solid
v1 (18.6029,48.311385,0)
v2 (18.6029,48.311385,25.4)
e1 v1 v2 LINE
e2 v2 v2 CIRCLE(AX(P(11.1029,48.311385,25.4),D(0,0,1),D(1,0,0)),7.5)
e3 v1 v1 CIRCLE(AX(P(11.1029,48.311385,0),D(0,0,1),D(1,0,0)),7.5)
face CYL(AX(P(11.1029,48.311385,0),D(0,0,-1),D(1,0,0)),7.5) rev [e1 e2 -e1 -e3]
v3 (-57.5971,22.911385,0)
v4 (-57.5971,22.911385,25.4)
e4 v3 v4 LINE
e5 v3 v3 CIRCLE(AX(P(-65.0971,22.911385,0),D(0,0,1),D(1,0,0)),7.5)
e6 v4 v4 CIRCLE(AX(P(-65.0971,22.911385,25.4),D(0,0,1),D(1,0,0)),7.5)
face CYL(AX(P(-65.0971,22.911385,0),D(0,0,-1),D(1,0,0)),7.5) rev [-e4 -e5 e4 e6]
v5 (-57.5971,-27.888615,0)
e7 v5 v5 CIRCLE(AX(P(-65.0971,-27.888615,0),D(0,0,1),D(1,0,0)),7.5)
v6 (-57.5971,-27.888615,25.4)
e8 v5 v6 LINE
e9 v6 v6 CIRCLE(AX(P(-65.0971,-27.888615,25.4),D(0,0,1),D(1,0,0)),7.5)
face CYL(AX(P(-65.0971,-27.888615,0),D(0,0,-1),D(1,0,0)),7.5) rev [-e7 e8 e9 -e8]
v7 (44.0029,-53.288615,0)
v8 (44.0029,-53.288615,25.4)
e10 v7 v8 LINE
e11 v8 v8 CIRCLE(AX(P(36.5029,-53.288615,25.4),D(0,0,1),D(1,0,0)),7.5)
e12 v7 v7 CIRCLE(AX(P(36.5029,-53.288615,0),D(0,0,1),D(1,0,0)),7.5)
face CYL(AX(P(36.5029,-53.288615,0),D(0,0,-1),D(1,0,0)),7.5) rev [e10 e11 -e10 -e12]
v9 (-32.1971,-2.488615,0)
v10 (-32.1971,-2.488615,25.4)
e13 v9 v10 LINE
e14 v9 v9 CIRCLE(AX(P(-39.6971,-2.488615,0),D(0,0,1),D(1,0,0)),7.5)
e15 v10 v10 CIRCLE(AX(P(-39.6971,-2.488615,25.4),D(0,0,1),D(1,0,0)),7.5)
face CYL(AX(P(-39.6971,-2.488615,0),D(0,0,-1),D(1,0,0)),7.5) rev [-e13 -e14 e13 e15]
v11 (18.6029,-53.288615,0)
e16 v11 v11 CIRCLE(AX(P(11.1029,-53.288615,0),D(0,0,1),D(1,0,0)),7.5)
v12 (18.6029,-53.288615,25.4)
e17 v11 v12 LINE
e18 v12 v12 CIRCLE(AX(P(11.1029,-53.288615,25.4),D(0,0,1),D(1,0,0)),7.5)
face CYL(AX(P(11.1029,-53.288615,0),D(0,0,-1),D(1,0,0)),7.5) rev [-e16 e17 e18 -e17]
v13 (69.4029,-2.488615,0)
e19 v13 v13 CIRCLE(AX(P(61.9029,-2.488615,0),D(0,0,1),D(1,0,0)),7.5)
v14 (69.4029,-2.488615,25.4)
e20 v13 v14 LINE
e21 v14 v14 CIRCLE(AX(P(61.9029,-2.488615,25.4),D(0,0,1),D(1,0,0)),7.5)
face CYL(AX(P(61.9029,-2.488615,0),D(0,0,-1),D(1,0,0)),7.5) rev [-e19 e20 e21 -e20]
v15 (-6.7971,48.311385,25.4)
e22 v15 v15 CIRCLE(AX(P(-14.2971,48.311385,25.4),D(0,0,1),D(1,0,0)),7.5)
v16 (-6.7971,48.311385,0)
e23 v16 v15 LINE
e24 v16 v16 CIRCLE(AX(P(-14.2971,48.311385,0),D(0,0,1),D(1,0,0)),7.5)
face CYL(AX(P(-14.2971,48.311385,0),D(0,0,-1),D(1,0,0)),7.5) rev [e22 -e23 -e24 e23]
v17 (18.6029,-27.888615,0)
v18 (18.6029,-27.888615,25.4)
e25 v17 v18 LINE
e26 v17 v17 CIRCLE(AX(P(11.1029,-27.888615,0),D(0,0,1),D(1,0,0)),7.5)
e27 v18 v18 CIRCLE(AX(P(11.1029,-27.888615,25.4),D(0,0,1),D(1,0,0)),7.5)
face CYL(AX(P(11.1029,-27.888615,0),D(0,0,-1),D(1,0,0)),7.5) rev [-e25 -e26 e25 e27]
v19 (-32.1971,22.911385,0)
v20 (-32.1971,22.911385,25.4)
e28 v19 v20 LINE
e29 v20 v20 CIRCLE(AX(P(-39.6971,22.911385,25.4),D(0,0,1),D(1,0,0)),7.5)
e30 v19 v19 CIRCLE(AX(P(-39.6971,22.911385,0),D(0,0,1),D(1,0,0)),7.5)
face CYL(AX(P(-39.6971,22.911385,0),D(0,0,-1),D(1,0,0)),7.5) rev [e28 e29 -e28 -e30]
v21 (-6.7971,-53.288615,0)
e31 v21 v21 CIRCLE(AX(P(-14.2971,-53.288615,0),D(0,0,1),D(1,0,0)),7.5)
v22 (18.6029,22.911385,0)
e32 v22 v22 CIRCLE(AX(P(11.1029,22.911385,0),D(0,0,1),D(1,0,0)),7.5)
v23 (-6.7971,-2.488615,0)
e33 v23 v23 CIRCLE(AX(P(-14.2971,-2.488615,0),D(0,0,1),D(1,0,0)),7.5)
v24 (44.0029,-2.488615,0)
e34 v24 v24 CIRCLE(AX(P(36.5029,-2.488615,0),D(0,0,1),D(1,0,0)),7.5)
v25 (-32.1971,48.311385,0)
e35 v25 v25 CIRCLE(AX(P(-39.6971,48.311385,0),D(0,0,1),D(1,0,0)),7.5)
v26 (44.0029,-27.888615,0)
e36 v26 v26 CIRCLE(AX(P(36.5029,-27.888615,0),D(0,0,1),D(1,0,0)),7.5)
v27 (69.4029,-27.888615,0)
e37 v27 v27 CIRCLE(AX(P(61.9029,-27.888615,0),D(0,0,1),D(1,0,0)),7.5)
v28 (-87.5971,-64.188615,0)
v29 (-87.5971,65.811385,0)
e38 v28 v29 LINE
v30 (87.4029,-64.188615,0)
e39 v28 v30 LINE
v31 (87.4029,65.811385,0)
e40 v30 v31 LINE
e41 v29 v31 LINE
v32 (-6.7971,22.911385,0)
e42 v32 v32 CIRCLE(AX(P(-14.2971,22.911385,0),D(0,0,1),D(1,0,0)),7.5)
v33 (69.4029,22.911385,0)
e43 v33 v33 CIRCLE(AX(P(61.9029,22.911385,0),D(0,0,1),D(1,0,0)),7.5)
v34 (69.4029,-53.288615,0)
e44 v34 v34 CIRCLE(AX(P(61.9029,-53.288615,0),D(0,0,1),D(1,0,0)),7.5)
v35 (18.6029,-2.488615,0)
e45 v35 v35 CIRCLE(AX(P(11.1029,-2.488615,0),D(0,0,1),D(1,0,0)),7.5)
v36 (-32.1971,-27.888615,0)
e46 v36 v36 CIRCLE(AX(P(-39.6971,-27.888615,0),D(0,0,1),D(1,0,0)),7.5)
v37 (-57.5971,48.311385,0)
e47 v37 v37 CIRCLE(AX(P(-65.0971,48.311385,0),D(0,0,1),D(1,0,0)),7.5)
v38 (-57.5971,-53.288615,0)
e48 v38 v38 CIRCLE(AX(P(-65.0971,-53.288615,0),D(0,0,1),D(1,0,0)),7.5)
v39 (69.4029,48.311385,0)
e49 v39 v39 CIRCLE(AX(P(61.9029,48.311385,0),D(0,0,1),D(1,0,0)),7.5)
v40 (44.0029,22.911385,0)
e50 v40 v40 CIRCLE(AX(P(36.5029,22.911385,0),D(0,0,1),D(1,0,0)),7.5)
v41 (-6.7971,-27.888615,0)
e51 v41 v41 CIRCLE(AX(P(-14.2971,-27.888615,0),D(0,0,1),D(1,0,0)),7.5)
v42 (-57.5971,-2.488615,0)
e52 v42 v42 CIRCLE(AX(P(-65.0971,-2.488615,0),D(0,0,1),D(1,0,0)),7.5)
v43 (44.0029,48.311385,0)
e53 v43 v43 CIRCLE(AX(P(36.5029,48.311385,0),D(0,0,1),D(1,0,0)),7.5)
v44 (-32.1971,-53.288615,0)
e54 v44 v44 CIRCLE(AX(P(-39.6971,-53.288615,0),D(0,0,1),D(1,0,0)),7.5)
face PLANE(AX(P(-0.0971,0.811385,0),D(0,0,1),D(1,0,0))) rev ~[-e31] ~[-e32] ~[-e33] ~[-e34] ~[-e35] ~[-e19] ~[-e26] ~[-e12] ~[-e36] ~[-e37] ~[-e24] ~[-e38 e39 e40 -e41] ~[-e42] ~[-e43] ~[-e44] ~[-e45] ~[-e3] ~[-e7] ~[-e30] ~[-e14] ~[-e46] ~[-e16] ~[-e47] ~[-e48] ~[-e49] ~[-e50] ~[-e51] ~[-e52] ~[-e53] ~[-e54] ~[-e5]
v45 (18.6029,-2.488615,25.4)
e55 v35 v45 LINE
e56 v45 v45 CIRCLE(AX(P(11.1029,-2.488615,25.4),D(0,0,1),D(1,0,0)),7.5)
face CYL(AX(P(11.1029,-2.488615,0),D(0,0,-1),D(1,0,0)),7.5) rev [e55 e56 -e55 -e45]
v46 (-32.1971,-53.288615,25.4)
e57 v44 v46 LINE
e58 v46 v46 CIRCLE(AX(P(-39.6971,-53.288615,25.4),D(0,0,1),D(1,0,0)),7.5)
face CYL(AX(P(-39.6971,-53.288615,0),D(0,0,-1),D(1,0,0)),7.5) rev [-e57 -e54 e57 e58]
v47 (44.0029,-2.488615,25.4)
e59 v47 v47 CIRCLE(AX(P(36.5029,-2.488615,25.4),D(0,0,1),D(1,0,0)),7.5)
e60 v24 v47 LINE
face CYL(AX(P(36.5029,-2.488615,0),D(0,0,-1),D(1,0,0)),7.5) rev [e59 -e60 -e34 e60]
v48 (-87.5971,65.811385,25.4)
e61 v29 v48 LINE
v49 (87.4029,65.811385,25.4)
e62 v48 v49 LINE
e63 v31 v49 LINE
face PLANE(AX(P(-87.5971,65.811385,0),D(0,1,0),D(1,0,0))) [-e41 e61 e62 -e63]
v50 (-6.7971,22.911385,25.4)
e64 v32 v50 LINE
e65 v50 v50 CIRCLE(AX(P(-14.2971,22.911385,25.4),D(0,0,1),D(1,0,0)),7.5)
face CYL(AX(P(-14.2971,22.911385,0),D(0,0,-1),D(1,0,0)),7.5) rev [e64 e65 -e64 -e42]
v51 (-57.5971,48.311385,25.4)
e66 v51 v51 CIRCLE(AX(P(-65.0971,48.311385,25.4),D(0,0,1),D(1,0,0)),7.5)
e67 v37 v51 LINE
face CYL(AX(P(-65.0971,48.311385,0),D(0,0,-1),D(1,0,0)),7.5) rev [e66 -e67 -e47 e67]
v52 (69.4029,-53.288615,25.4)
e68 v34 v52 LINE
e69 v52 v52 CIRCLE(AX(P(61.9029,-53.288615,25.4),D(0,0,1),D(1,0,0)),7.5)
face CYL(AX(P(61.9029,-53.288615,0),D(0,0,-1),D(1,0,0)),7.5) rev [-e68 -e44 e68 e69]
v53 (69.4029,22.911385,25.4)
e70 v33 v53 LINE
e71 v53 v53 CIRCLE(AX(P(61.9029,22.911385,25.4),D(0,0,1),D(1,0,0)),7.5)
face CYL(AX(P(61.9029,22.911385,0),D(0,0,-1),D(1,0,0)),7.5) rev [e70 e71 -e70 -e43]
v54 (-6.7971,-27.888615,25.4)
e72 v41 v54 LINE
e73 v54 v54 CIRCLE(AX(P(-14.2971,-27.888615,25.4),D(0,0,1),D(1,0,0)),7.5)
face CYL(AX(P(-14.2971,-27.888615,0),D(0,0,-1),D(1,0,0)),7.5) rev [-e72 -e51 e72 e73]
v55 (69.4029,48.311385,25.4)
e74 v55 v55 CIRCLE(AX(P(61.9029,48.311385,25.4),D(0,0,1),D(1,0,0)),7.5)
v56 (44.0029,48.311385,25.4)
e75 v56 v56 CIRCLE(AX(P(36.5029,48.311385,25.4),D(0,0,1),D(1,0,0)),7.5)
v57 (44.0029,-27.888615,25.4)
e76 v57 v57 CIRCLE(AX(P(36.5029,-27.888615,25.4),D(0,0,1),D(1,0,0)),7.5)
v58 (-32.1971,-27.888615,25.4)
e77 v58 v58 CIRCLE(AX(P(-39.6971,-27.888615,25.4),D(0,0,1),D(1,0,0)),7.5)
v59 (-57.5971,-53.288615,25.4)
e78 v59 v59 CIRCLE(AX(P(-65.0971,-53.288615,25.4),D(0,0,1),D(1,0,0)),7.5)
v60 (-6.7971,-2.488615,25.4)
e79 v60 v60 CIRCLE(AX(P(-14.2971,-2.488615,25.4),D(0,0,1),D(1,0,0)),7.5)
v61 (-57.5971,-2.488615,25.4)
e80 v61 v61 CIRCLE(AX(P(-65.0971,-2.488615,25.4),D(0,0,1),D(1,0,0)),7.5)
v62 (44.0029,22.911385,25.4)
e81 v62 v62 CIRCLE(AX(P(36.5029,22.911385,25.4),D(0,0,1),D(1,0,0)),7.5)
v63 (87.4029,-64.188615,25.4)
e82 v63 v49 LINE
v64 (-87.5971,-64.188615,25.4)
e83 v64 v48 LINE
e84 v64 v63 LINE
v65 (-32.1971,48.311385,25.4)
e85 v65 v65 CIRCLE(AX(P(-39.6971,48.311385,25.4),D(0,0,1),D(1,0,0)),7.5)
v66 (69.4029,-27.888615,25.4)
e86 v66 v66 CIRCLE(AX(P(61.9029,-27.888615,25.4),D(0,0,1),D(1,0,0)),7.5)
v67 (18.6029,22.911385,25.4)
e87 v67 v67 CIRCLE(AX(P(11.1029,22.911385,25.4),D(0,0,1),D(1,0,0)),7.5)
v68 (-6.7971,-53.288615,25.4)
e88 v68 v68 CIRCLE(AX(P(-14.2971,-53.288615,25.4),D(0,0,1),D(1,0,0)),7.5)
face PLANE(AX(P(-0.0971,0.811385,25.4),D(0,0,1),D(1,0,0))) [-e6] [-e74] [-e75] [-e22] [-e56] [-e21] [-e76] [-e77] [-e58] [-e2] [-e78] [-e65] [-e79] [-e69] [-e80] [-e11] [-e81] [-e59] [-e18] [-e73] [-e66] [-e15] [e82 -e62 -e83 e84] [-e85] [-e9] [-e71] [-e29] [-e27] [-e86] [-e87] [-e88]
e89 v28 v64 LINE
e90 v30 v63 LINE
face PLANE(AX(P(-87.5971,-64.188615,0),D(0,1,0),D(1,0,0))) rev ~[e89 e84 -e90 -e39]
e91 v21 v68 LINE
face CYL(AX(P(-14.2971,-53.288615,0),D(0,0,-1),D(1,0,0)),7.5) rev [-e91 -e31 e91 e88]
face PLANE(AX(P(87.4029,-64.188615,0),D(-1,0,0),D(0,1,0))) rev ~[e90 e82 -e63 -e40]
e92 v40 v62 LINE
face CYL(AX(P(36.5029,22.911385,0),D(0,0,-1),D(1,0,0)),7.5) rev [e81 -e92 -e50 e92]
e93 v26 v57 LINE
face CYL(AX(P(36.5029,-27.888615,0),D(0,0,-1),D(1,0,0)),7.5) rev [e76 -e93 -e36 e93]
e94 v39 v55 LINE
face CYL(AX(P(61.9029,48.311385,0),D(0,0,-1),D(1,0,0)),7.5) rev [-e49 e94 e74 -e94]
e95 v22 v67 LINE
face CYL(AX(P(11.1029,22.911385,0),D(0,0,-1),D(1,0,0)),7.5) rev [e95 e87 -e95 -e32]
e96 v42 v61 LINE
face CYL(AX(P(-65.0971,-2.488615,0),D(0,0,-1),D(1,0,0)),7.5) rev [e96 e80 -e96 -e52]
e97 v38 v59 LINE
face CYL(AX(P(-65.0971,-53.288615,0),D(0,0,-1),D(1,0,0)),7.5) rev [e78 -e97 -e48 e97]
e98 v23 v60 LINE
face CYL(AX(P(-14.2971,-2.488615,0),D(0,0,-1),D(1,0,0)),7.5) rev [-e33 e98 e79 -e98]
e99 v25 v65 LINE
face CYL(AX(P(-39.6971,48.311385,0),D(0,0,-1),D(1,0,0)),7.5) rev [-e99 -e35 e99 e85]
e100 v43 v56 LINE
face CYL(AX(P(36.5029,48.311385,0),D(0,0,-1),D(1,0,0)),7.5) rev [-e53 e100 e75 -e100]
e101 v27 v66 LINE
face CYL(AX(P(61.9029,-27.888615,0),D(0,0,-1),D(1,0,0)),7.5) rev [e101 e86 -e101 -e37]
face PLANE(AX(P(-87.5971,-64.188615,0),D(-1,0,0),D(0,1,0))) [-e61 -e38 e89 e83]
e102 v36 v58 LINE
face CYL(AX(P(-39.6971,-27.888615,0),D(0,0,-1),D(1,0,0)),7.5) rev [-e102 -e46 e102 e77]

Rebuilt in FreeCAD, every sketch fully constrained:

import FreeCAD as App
import Part
import Sketcher
from FreeCAD import Vector
Q = App.Units.Quantity


def add_polygon(sketch, points):
    """Adds a closed chain of lines whose ends are joined by coincident constraints."""
    first, n = sketch.GeometryCount, len(points)
    for a, b in zip(points, points[1:] + points[:1]):
        sketch.addGeometry(Part.LineSegment(App.Vector(*a, 0), App.Vector(*b, 0)), False)
    for i in range(n):
        sketch.addConstraint(Sketcher.Constraint("Coincident", first + i, 2, first + (i + 1) % n, 1))

doc = App.newDocument("Part")
body = doc.addObject("PartDesign::Body", "Body")

sketch1 = doc.addObject("Sketcher::SketchObject", "Sketch")
body.addObject(sketch1)
sketch1.AttachmentSupport = (doc.XY_Plane, [""])
sketch1.MapMode = "FlatFace"
add_polygon(sketch1, [(-88, 66), (-88, -64), (87, -64), (87, 66)])
sketch1.addGeometry(Part.Circle(Vector(-65, -53, 0), Vector(0, 0, 1), 8), False)
sketch1.addGeometry(Part.Circle(Vector(-40, -53, 0), Vector(0, 0, 1), 8), False)
sketch1.addGeometry(Part.Circle(Vector(-14, -53, 0), Vector(0, 0, 1), 8), False)
sketch1.addGeometry(Part.Circle(Vector(-65, -28, 0), Vector(0, 0, 1), 8), False)
sketch1.addGeometry(Part.Circle(Vector(-40, -28, 0), Vector(0, 0, 1), 8), False)
sketch1.addGeometry(Part.Circle(Vector(-14, -28, 0), Vector(0, 0, 1), 8), False)
sketch1.addGeometry(Part.Circle(Vector(11, -53, 0), Vector(0, 0, 1), 8), False)
sketch1.addGeometry(Part.Circle(Vector(37, -53, 0), Vector(0, 0, 1), 8), False)
sketch1.addGeometry(Part.Circle(Vector(62, -53, 0), Vector(0, 0, 1), 8), False)
sketch1.addGeometry(Part.Circle(Vector(11, -28, 0), Vector(0, 0, 1), 8), False)
sketch1.addGeometry(Part.Circle(Vector(37, -28, 0), Vector(0, 0, 1), 8), False)
sketch1.addGeometry(Part.Circle(Vector(62, -28, 0), Vector(0, 0, 1), 8), False)
sketch1.addGeometry(Part.Circle(Vector(-65, -2, 0), Vector(0, 0, 1), 8), False)
sketch1.addGeometry(Part.Circle(Vector(-40, -2, 0), Vector(0, 0, 1), 8), False)
sketch1.addGeometry(Part.Circle(Vector(-65, 23, 0), Vector(0, 0, 1), 8), False)
sketch1.addGeometry(Part.Circle(Vector(-40, 23, 0), Vector(0, 0, 1), 8), False)
sketch1.addGeometry(Part.Circle(Vector(-14, -2, 0), Vector(0, 0, 1), 8), False)
sketch1.addGeometry(Part.Circle(Vector(-14, 23, 0), Vector(0, 0, 1), 8), False)
sketch1.addGeometry(Part.Circle(Vector(-65, 48, 0), Vector(0, 0, 1), 8), False)
sketch1.addGeometry(Part.Circle(Vector(-40, 48, 0), Vector(0, 0, 1), 8), False)
sketch1.addGeometry(Part.Circle(Vector(-14, 48, 0), Vector(0, 0, 1), 8), False)
sketch1.addGeometry(Part.Circle(Vector(11, -2, 0), Vector(0, 0, 1), 8), False)
sketch1.addGeometry(Part.Circle(Vector(11, 23, 0), Vector(0, 0, 1), 8), False)
sketch1.addGeometry(Part.Circle(Vector(37, -2, 0), Vector(0, 0, 1), 8), False)
sketch1.addGeometry(Part.Circle(Vector(62, -2, 0), Vector(0, 0, 1), 8), False)
sketch1.addGeometry(Part.Circle(Vector(37, 23, 0), Vector(0, 0, 1), 8), False)
sketch1.addGeometry(Part.Circle(Vector(62, 23, 0), Vector(0, 0, 1), 8), False)
sketch1.addGeometry(Part.Circle(Vector(11, 48, 0), Vector(0, 0, 1), 8), False)
sketch1.addGeometry(Part.Circle(Vector(37, 48, 0), Vector(0, 0, 1), 8), False)
sketch1.addGeometry(Part.Circle(Vector(62, 48, 0), Vector(0, 0, 1), 8), False)
sketch1.addConstraint(Sketcher.Constraint("Vertical", 0))
sketch1.addConstraint(Sketcher.Constraint("Horizontal", 1))
sketch1.addConstraint(Sketcher.Constraint("Vertical", 2))
sketch1.addConstraint(Sketcher.Constraint("Horizontal", 3))
sketch1.addConstraint(Sketcher.Constraint("Equal", 4, 5))
sketch1.addConstraint(Sketcher.Constraint("Equal", 5, 6))
sketch1.addConstraint(Sketcher.Constraint("Equal", 6, 7))
sketch1.addConstraint(Sketcher.Constraint("Equal", 7, 8))
sketch1.addConstraint(Sketcher.Constraint("Equal", 8, 9))
sketch1.addConstraint(Sketcher.Constraint("Equal", 9, 10))
sketch1.addConstraint(Sketcher.Constraint("Equal", 10, 11))
sketch1.addConstraint(Sketcher.Constraint("Equal", 11, 12))
sketch1.addConstraint(Sketcher.Constraint("Equal", 12, 13))
sketch1.addConstraint(Sketcher.Constraint("Equal", 13, 14))
sketch1.addConstraint(Sketcher.Constraint("Equal", 14, 15))
sketch1.addConstraint(Sketcher.Constraint("Equal", 15, 16))
sketch1.addConstraint(Sketcher.Constraint("Equal", 16, 17))
sketch1.addConstraint(Sketcher.Constraint("Equal", 17, 18))
sketch1.addConstraint(Sketcher.Constraint("Equal", 18, 19))
sketch1.addConstraint(Sketcher.Constraint("Equal", 19, 20))
sketch1.addConstraint(Sketcher.Constraint("Equal", 20, 21))
sketch1.addConstraint(Sketcher.Constraint("Equal", 21, 22))
sketch1.addConstraint(Sketcher.Constraint("Equal", 22, 23))
sketch1.addConstraint(Sketcher.Constraint("Equal", 23, 24))
sketch1.addConstraint(Sketcher.Constraint("Equal", 24, 25))
sketch1.addConstraint(Sketcher.Constraint("Equal", 25, 26))
sketch1.addConstraint(Sketcher.Constraint("Equal", 26, 27))
sketch1.addConstraint(Sketcher.Constraint("Equal", 27, 28))
sketch1.addConstraint(Sketcher.Constraint("Equal", 28, 29))
sketch1.addConstraint(Sketcher.Constraint("Equal", 29, 30))
sketch1.addConstraint(Sketcher.Constraint("Equal", 30, 31))
sketch1.addConstraint(Sketcher.Constraint("Equal", 31, 32))
sketch1.addConstraint(Sketcher.Constraint("Equal", 32, 33))
sketch1.addConstraint(Sketcher.Constraint("Horizontal", 4, 3, 5, 3))
sketch1.addConstraint(Sketcher.Constraint("Horizontal", 5, 3, 6, 3))
sketch1.addConstraint(Sketcher.Constraint("Horizontal", 7, 3, 8, 3))
sketch1.addConstraint(Sketcher.Constraint("Horizontal", 8, 3, 9, 3))
sketch1.addConstraint(Sketcher.Constraint("Horizontal", 6, 3, 10, 3))
sketch1.addConstraint(Sketcher.Constraint("Horizontal", 10, 3, 11, 3))
sketch1.addConstraint(Sketcher.Constraint("Horizontal", 11, 3, 12, 3))
sketch1.addConstraint(Sketcher.Constraint("Horizontal", 9, 3, 13, 3))
sketch1.addConstraint(Sketcher.Constraint("Horizontal", 13, 3, 14, 3))
sketch1.addConstraint(Sketcher.Constraint("Horizontal", 14, 3, 15, 3))
sketch1.addConstraint(Sketcher.Constraint("Horizontal", 16, 3, 17, 3))
sketch1.addConstraint(Sketcher.Constraint("Horizontal", 18, 3, 19, 3))
sketch1.addConstraint(Sketcher.Constraint("Horizontal", 17, 3, 20, 3))
sketch1.addConstraint(Sketcher.Constraint("Horizontal", 19, 3, 21, 3))
sketch1.addConstraint(Sketcher.Constraint("Horizontal", 22, 3, 23, 3))
sketch1.addConstraint(Sketcher.Constraint("Horizontal", 23, 3, 24, 3))
sketch1.addConstraint(Sketcher.Constraint("Horizontal", 20, 3, 25, 3))
sketch1.addConstraint(Sketcher.Constraint("Horizontal", 21, 3, 26, 3))
sketch1.addConstraint(Sketcher.Constraint("Horizontal", 25, 3, 27, 3))
sketch1.addConstraint(Sketcher.Constraint("Horizontal", 27, 3, 28, 3))
sketch1.addConstraint(Sketcher.Constraint("Horizontal", 26, 3, 29, 3))
sketch1.addConstraint(Sketcher.Constraint("Horizontal", 29, 3, 30, 3))
sketch1.addConstraint(Sketcher.Constraint("Horizontal", 24, 3, 31, 3))
sketch1.addConstraint(Sketcher.Constraint("Horizontal", 31, 3, 32, 3))
sketch1.addConstraint(Sketcher.Constraint("Horizontal", 32, 3, 33, 3))
sketch1.addConstraint(Sketcher.Constraint("Vertical", 4, 3, 7, 3))
sketch1.addConstraint(Sketcher.Constraint("Vertical", 5, 3, 8, 3))
sketch1.addConstraint(Sketcher.Constraint("Vertical", 6, 3, 9, 3))
sketch1.addConstraint(Sketcher.Constraint("Vertical", 10, 3, 13, 3))
sketch1.addConstraint(Sketcher.Constraint("Vertical", 11, 3, 14, 3))
sketch1.addConstraint(Sketcher.Constraint("Vertical", 12, 3, 15, 3))
sketch1.addConstraint(Sketcher.Constraint("Vertical", 7, 3, 16, 3))
sketch1.addConstraint(Sketcher.Constraint("Vertical", 8, 3, 17, 3))
sketch1.addConstraint(Sketcher.Constraint("Vertical", 16, 3, 18, 3))
sketch1.addConstraint(Sketcher.Constraint("Vertical", 17, 3, 19, 3))
sketch1.addConstraint(Sketcher.Constraint("Vertical", 9, 3, 20, 3))
sketch1.addConstraint(Sketcher.Constraint("Vertical", 20, 3, 21, 3))
sketch1.addConstraint(Sketcher.Constraint("Vertical", 18, 3, 22, 3))
sketch1.addConstraint(Sketcher.Constraint("Vertical", 19, 3, 23, 3))
sketch1.addConstraint(Sketcher.Constraint("Vertical", 21, 3, 24, 3))
sketch1.addConstraint(Sketcher.Constraint("Vertical", 13, 3, 25, 3))
sketch1.addConstraint(Sketcher.Constraint("Vertical", 25, 3, 26, 3))
sketch1.addConstraint(Sketcher.Constraint("Vertical", 14, 3, 27, 3))
sketch1.addConstraint(Sketcher.Constraint("Vertical", 15, 3, 28, 3))
sketch1.addConstraint(Sketcher.Constraint("Vertical", 27, 3, 29, 3))
sketch1.addConstraint(Sketcher.Constraint("Vertical", 28, 3, 30, 3))
sketch1.addConstraint(Sketcher.Constraint("Vertical", 26, 3, 31, 3))
sketch1.addConstraint(Sketcher.Constraint("Vertical", 29, 3, 32, 3))
sketch1.addConstraint(Sketcher.Constraint("Vertical", 30, 3, 33, 3))
sketch1.addConstraint(Sketcher.Constraint("Diameter", 4, Q("15 mm")))
sketch1.addConstraint(Sketcher.Constraint("DistanceX", 1, 1, 1, 2, Q("175 mm")))
sketch1.addConstraint(Sketcher.Constraint("DistanceY", 0, 2, 0, 1, Q("130 mm")))
sketch1.addConstraint(Sketcher.Constraint("DistanceX", 4, 3, 5, 3, Q("25.4 mm")))
sketch1.addConstraint(Sketcher.Constraint("DistanceX", 5, 3, 6, 3, Q("25.4 mm")))
sketch1.addConstraint(Sketcher.Constraint("DistanceY", 4, 3, 7, 3, Q("25.4 mm")))
sketch1.addConstraint(Sketcher.Constraint("DistanceX", 6, 3, 10, 3, Q("25.4 mm")))
sketch1.addConstraint(Sketcher.Constraint("DistanceX", 10, 3, 11, 3, Q("25.4 mm")))
sketch1.addConstraint(Sketcher.Constraint("DistanceX", 11, 3, 12, 3, Q("25.4 mm")))
sketch1.addConstraint(Sketcher.Constraint("DistanceY", 7, 3, 16, 3, Q("25.4 mm")))
sketch1.addConstraint(Sketcher.Constraint("DistanceY", 16, 3, 18, 3, Q("25.4 mm")))
sketch1.addConstraint(Sketcher.Constraint("DistanceY", 18, 3, 22, 3, Q("25.4 mm")))
sketch1.addConstraint(Sketcher.Constraint("DistanceX", 0, 2, 4, 3, Q("22.5 mm")))
sketch1.addConstraint(Sketcher.Constraint("DistanceY", 0, 2, 4, 3, Q("10.9 mm")))
sketch1.addConstraint(Sketcher.Constraint("DistanceX", 4, 3, -1, 1, Q("65.0971 mm")))
sketch1.addConstraint(Sketcher.Constraint("DistanceY", 4, 3, -1, 1, Q("53.288615 mm")))
pad1 = doc.addObject("PartDesign::Pad", "Pad")
body.addObject(pad1)
pad1.Profile = sketch1
pad1.Length = 25.4

doc.recompute()
